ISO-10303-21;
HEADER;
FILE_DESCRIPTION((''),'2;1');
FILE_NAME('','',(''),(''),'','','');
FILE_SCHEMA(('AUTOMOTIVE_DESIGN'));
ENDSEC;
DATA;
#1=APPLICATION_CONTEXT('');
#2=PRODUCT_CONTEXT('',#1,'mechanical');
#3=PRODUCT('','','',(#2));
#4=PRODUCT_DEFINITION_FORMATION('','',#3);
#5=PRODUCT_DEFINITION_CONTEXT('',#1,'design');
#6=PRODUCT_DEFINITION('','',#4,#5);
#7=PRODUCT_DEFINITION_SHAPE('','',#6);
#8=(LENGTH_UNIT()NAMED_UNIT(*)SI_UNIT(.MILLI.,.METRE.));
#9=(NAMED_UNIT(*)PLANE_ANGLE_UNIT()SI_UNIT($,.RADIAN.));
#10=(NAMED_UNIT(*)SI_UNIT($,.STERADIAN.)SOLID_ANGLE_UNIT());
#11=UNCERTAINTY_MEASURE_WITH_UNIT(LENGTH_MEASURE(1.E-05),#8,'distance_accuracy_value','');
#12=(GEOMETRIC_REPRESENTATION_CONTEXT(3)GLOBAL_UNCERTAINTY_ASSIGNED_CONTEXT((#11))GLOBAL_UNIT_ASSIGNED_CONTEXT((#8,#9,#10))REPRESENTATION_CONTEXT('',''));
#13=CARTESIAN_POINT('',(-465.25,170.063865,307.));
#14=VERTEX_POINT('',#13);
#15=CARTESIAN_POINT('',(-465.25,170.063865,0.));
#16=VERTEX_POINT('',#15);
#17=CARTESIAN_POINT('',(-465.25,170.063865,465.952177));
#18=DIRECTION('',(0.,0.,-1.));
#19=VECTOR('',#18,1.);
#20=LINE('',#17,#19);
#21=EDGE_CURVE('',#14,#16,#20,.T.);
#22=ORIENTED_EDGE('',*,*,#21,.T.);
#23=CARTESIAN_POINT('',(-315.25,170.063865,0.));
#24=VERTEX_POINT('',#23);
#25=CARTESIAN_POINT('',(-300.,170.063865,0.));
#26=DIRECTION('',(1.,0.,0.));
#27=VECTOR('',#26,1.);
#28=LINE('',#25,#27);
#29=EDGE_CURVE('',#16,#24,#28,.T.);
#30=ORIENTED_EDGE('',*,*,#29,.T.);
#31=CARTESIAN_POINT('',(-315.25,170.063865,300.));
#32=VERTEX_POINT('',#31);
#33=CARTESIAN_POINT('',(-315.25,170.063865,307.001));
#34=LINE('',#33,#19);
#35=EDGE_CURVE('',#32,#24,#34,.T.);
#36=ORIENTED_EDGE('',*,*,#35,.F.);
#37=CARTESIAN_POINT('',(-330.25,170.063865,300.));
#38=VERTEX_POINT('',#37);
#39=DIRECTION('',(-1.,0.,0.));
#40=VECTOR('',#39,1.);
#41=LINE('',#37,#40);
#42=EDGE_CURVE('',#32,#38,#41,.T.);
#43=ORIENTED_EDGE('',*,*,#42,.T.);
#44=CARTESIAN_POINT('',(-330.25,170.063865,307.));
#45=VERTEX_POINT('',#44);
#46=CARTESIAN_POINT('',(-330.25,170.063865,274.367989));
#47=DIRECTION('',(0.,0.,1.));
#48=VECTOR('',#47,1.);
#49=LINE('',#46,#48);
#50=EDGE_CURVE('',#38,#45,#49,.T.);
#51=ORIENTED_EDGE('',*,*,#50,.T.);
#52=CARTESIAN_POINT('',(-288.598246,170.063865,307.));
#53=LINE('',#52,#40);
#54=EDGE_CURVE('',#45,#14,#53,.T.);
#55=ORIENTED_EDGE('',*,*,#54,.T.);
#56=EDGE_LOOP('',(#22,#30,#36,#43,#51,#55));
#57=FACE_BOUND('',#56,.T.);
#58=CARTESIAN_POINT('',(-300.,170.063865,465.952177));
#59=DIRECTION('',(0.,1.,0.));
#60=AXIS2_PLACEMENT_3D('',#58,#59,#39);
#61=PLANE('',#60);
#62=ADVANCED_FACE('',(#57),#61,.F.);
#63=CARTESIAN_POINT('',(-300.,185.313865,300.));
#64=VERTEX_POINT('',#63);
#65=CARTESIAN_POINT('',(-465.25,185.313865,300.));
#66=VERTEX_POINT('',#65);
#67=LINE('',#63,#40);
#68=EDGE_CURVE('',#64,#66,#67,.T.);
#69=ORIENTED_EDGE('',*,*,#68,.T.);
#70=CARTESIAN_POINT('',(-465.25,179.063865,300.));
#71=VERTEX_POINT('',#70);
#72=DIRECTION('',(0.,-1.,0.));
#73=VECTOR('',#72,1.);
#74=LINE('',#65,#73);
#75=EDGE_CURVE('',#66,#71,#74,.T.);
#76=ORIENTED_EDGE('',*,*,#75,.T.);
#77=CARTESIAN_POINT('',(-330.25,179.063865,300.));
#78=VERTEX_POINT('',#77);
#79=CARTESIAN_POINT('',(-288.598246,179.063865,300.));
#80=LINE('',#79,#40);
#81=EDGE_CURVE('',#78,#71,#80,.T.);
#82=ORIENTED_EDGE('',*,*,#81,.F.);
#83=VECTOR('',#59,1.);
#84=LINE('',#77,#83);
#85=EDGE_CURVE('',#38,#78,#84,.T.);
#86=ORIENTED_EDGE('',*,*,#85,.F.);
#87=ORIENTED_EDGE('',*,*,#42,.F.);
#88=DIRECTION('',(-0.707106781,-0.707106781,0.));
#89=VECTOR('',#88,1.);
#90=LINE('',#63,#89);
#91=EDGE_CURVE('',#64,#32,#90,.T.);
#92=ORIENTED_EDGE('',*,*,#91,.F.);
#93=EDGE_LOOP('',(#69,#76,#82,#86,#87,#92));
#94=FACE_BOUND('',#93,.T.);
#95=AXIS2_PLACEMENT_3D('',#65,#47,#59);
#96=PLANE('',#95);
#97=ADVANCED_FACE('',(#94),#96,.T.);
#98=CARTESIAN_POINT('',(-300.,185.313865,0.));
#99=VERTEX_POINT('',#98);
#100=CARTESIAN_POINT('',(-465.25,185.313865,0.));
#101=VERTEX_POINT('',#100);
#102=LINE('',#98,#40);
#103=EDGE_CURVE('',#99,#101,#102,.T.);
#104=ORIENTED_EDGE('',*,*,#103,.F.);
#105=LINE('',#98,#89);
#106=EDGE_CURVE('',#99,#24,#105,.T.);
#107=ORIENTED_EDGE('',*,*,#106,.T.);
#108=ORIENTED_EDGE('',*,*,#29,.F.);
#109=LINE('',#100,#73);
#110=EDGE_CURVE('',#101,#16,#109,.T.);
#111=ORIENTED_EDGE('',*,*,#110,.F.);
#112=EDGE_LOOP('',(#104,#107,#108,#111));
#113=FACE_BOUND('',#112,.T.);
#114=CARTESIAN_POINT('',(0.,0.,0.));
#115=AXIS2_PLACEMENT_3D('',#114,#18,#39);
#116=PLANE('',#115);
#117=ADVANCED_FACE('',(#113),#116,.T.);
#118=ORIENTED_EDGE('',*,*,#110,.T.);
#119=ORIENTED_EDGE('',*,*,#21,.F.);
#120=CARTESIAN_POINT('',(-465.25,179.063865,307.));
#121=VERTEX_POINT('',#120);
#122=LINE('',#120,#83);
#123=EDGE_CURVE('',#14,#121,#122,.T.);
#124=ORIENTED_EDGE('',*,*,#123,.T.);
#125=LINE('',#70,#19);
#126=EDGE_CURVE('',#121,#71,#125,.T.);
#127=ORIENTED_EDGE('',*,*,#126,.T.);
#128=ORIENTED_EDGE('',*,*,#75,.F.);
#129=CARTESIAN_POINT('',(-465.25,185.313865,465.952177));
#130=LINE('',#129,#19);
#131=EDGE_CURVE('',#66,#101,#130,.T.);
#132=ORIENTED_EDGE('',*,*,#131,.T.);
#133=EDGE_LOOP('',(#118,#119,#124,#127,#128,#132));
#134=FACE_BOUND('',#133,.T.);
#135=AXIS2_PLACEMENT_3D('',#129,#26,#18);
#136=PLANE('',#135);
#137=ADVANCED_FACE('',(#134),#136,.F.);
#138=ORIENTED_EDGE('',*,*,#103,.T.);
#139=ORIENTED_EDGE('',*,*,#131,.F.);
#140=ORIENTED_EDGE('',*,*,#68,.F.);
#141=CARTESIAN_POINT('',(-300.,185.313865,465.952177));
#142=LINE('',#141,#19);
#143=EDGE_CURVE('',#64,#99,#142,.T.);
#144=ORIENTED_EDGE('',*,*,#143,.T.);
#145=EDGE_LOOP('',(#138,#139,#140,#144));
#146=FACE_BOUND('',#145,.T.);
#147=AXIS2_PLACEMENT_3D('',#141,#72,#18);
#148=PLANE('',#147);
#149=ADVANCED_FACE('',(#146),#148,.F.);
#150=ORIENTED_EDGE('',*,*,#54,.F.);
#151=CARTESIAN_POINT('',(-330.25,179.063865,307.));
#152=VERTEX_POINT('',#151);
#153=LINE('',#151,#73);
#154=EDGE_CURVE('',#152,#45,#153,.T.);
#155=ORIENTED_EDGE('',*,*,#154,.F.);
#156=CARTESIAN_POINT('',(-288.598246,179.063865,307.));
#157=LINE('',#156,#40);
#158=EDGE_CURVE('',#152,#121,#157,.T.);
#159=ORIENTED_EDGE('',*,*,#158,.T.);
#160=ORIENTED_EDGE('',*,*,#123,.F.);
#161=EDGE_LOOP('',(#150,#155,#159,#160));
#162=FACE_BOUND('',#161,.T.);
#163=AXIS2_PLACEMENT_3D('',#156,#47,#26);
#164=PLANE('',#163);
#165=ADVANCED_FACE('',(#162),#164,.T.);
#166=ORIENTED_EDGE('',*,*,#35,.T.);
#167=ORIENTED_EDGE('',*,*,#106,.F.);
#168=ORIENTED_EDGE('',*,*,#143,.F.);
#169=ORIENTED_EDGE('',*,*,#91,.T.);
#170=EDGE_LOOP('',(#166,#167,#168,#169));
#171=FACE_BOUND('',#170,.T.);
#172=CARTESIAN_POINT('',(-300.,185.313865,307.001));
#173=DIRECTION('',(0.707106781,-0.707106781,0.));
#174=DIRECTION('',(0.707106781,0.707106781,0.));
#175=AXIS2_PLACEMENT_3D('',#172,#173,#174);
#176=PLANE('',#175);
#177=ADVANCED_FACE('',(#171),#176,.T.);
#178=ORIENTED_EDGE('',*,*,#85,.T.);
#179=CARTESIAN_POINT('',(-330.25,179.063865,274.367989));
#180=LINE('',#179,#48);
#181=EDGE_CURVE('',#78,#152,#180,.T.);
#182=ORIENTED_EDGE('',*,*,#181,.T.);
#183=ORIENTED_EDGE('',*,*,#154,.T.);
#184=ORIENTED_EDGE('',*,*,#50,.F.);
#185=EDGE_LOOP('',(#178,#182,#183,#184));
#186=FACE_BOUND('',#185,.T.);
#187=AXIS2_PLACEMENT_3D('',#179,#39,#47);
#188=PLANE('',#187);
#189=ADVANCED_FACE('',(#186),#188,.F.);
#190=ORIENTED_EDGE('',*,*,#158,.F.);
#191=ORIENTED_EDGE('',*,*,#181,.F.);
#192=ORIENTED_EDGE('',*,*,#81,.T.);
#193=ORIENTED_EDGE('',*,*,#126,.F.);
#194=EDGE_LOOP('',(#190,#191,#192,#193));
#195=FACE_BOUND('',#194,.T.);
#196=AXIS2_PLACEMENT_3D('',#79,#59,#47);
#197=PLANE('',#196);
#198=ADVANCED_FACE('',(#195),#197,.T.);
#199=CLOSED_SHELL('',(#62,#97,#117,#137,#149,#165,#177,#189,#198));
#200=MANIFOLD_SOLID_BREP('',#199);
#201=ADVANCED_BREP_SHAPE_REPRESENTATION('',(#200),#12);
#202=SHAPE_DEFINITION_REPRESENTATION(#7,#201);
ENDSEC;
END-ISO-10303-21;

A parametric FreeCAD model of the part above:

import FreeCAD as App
import Part
import Sketcher
from FreeCAD import Vector
Q = App.Units.Quantity

doc = App.newDocument("Part")
params = doc.addObject("Spreadsheet::Sheet", "Params")
for row, (alias, value) in enumerate([
    ("sketch1_width", "165.25 mm"),
    ("sketch1_height", "15.25 mm"),
    ("pad1_length", "300 mm"),
    ("sketch2_width", "9 mm"),
    ("sketch2_height", "7 mm"),
    ("pad2_length", "165.25 mm"),
    ("sketch3_width", "15.25 mm"),
    ("sketch4_width", "15.25 mm"),
    ("sketch5_width", "24 mm"),
    ("sketch5_height", "9 mm"),
    ("pocket3_length", "7 mm"),
], start=1):
    params.set(f"A{row}", alias)
    params.set(f"B{row}", "=" + value)
    params.setAlias(f"B{row}", alias)

body = doc.addObject("PartDesign::Body", "Body")

sketch1 = body.newObject("Sketcher::SketchObject", "Sketch")
sketch1.AttachmentSupport = (doc.getObject("XY_Plane"), [""])
sketch1.MapMode = "FlatFace"
sketch1.addGeometry([
    Part.LineSegment(Vector(-465, 185, 0), Vector(-465, 170, 0)),
    Part.LineSegment(Vector(-465, 170, 0), Vector(-300, 170, 0)),
    Part.LineSegment(Vector(-300, 170, 0), Vector(-300, 185, 0)),
    Part.LineSegment(Vector(-300, 185, 0), Vector(-465, 185, 0)),
], False)
sketch1.addConstraint([
    Sketcher.Constraint("Coincident", 0, 2, 1, 1),
    Sketcher.Constraint("Coincident", 1, 2, 2, 1),
    Sketcher.Constraint("Coincident", 2, 2, 3, 1),
    Sketcher.Constraint("Coincident", 3, 2, 0, 1),
    Sketcher.Constraint("Vertical", 0),
    Sketcher.Constraint("Horizontal", 1),
    Sketcher.Constraint("Vertical", 2),
    Sketcher.Constraint("Horizontal", 3),
    Sketcher.Constraint("DistanceX", 1, 2, -1, 1, Q("300 mm")),
    Sketcher.Constraint("DistanceX", 1, 1, 1, 2, Q("165.25 mm")),
    Sketcher.Constraint("DistanceY", 0, 2, 0, 1, Q("15.25 mm")),
    Sketcher.Constraint("DistanceY", -1, 1, 0, 2, Q("170.063865 mm")),
])
sketch1.setExpression("Constraints[9]", "Params.sketch1_width")
sketch1.setExpression("Constraints[10]", "Params.sketch1_height")
pad1 = body.newObject("PartDesign::Pad", "Pad")
pad1.Profile = sketch1
pad1.setExpression("Length", "Params.pad1_length")

sketch2 = body.newObject("Sketcher::SketchObject", "Sketch001")
sketch2.AttachmentSupport = (doc.getObject("YZ_Plane"), [""])
sketch2.MapMode = "FlatFace"
sketch2.AttachmentOffset = App.Placement(Vector(0, 0, -465.25), App.Rotation())
sketch2.addGeometry([
    Part.LineSegment(Vector(179, 300, 0), Vector(170, 300, 0)),
    Part.LineSegment(Vector(170, 300, 0), Vector(170, 307, 0)),
    Part.LineSegment(Vector(170, 307, 0), Vector(179, 307, 0)),
    Part.LineSegment(Vector(179, 307, 0), Vector(179, 300, 0)),
], False)
sketch2.addConstraint([
    Sketcher.Constraint("Coincident", 0, 2, 1, 1),
    Sketcher.Constraint("Coincident", 1, 2, 2, 1),
    Sketcher.Constraint("Coincident", 2, 2, 3, 1),
    Sketcher.Constraint("Coincident", 3, 2, 0, 1),
    Sketcher.Constraint("Horizontal", 0),
    Sketcher.Constraint("Vertical", 1),
    Sketcher.Constraint("Horizontal", 2),
    Sketcher.Constraint("Vertical", 3),
    Sketcher.Constraint("DistanceX", 0, 2, 0, 1, Q("9 mm")),
    Sketcher.Constraint("DistanceY", 1, 1, 1, 2, Q("7 mm")),
    Sketcher.Constraint("DistanceY", -1, 1, 0, 2, Q("300 mm")),
    Sketcher.Constraint("DistanceX", -1, 1, 0, 2, Q("170.063865 mm")),
])
sketch2.setExpression("Constraints[8]", "Params.sketch2_width")
sketch2.setExpression("Constraints[9]", "Params.sketch2_height")
pad2 = body.newObject("PartDesign::Pad", "Pad001")
pad2.Profile = sketch2
pad2.setExpression("Length", "Params.pad2_length")

sketch3 = body.newObject("Sketcher::SketchObject", "Sketch002")
sketch3.AttachmentSupport = (doc.getObject("XY_Plane"), [""])
sketch3.MapMode = "FlatFace"
sketch3.AttachmentOffset = App.Placement(Vector(0, 0, 300), App.Rotation())
sketch3.addGeometry([
    Part.LineSegment(Vector(-300, 185, 0), Vector(-315, 170, 0)),
    Part.LineSegment(Vector(-315, 170, 0), Vector(-300, 170, 0)),
    Part.LineSegment(Vector(-300, 170, 0), Vector(-300, 185, 0)),
], False)
sketch3.addConstraint([
    Sketcher.Constraint("Coincident", 0, 2, 1, 1),
    Sketcher.Constraint("Coincident", 1, 2, 2, 1),
    Sketcher.Constraint("Coincident", 2, 2, 0, 1),
    Sketcher.Constraint("Horizontal", 1),
    Sketcher.Constraint("Vertical", 2),
    Sketcher.Constraint("Equal", 1, 2),
    Sketcher.Constraint("DistanceX", 1, 2, -1, 1, Q("300 mm")),
    Sketcher.Constraint("DistanceX", 1, 1, 1, 2, Q("15.25 mm")),
    Sketcher.Constraint("DistanceY", -1, 1, 0, 2, Q("170.063865 mm")),
])
sketch3.setExpression("Constraints[7]", "Params.sketch3_width")
pocket1 = body.newObject("PartDesign::Pocket", "Pocket")
pocket1.Profile = sketch3
pocket1.Type = "UpToFirst"

sketch4 = body.newObject("Sketcher::SketchObject", "Sketch003")
sketch4.AttachmentSupport = (doc.getObject("XY_Plane"), [""])
sketch4.MapMode = "FlatFace"
sketch4.AttachmentOffset = App.Placement(Vector(0, 0, 300), App.Rotation())
sketch4.addGeometry([
    Part.LineSegment(Vector(-300, 185, 0), Vector(-315, 170, 0)),
    Part.LineSegment(Vector(-315, 170, 0), Vector(-300, 170, 0)),
    Part.LineSegment(Vector(-300, 170, 0), Vector(-300, 185, 0)),
], False)
sketch4.addConstraint([
    Sketcher.Constraint("Coincident", 0, 2, 1, 1),
    Sketcher.Constraint("Coincident", 1, 2, 2, 1),
    Sketcher.Constraint("Coincident", 2, 2, 0, 1),
    Sketcher.Constraint("Horizontal", 1),
    Sketcher.Constraint("Vertical", 2),
    Sketcher.Constraint("Equal", 1, 2),
    Sketcher.Constraint("DistanceX", 1, 2, -1, 1, Q("300 mm")),
    Sketcher.Constraint("DistanceX", 1, 1, 1, 2, Q("15.25 mm")),
    Sketcher.Constraint("DistanceY", -1, 1, 0, 2, Q("170.063865 mm")),
])
sketch4.setExpression("Constraints[7]", "Params.sketch4_width")
pocket2 = body.newObject("PartDesign::Pocket", "Pocket001")
pocket2.Profile = sketch4
pocket2.Type = "UpToFirst"
pocket2.Reversed = True

sketch5 = body.newObject("Sketcher::SketchObject", "Sketch004")
sketch5.AttachmentSupport = (doc.getObject("XY_Plane"), [""])
sketch5.MapMode = "FlatFace"
sketch5.AttachmentOffset = App.Placement(Vector(0, 0, 307), App.Rotation())
sketch5.addGeometry([
    Part.LineSegment(Vector(-330, 179, 0), Vector(-330, 170, 0)),
    Part.LineSegment(Vector(-330, 170, 0), Vector(-306, 170, 0)),
    Part.LineSegment(Vector(-306, 170, 0), Vector(-306, 179, 0)),
    Part.LineSegment(Vector(-306, 179, 0), Vector(-330, 179, 0)),
], False)
sketch5.addConstraint([
    Sketcher.Constraint("Coincident", 0, 2, 1, 1),
    Sketcher.Constraint("Coincident", 1, 2, 2, 1),
    Sketcher.Constraint("Coincident", 2, 2, 3, 1),
    Sketcher.Constraint("Coincident", 3, 2, 0, 1),
    Sketcher.Constraint("Vertical", 0),
    Sketcher.Constraint("Horizontal", 1),
    Sketcher.Constraint("Vertical", 2),
    Sketcher.Constraint("Horizontal", 3),
    Sketcher.Constraint("DistanceX", 1, 1, 1, 2, Q("24 mm")),
    Sketcher.Constraint("DistanceY", 0, 2, 0, 1, Q("9 mm")),
    Sketcher.Constraint("DistanceX", 0, 2, -1, 1, Q("330.25 mm")),
    Sketcher.Constraint("DistanceY", -1, 1, 0, 2, Q("170.063865 mm")),
])
sketch5.setExpression("Constraints[8]", "Params.sketch5_width")
sketch5.setExpression("Constraints[9]", "Params.sketch5_height")
pocket3 = body.newObject("PartDesign::Pocket", "Pocket002")
pocket3.Profile = sketch5
pocket3.setExpression("Length", "Params.pocket3_length")

doc.recompute()
